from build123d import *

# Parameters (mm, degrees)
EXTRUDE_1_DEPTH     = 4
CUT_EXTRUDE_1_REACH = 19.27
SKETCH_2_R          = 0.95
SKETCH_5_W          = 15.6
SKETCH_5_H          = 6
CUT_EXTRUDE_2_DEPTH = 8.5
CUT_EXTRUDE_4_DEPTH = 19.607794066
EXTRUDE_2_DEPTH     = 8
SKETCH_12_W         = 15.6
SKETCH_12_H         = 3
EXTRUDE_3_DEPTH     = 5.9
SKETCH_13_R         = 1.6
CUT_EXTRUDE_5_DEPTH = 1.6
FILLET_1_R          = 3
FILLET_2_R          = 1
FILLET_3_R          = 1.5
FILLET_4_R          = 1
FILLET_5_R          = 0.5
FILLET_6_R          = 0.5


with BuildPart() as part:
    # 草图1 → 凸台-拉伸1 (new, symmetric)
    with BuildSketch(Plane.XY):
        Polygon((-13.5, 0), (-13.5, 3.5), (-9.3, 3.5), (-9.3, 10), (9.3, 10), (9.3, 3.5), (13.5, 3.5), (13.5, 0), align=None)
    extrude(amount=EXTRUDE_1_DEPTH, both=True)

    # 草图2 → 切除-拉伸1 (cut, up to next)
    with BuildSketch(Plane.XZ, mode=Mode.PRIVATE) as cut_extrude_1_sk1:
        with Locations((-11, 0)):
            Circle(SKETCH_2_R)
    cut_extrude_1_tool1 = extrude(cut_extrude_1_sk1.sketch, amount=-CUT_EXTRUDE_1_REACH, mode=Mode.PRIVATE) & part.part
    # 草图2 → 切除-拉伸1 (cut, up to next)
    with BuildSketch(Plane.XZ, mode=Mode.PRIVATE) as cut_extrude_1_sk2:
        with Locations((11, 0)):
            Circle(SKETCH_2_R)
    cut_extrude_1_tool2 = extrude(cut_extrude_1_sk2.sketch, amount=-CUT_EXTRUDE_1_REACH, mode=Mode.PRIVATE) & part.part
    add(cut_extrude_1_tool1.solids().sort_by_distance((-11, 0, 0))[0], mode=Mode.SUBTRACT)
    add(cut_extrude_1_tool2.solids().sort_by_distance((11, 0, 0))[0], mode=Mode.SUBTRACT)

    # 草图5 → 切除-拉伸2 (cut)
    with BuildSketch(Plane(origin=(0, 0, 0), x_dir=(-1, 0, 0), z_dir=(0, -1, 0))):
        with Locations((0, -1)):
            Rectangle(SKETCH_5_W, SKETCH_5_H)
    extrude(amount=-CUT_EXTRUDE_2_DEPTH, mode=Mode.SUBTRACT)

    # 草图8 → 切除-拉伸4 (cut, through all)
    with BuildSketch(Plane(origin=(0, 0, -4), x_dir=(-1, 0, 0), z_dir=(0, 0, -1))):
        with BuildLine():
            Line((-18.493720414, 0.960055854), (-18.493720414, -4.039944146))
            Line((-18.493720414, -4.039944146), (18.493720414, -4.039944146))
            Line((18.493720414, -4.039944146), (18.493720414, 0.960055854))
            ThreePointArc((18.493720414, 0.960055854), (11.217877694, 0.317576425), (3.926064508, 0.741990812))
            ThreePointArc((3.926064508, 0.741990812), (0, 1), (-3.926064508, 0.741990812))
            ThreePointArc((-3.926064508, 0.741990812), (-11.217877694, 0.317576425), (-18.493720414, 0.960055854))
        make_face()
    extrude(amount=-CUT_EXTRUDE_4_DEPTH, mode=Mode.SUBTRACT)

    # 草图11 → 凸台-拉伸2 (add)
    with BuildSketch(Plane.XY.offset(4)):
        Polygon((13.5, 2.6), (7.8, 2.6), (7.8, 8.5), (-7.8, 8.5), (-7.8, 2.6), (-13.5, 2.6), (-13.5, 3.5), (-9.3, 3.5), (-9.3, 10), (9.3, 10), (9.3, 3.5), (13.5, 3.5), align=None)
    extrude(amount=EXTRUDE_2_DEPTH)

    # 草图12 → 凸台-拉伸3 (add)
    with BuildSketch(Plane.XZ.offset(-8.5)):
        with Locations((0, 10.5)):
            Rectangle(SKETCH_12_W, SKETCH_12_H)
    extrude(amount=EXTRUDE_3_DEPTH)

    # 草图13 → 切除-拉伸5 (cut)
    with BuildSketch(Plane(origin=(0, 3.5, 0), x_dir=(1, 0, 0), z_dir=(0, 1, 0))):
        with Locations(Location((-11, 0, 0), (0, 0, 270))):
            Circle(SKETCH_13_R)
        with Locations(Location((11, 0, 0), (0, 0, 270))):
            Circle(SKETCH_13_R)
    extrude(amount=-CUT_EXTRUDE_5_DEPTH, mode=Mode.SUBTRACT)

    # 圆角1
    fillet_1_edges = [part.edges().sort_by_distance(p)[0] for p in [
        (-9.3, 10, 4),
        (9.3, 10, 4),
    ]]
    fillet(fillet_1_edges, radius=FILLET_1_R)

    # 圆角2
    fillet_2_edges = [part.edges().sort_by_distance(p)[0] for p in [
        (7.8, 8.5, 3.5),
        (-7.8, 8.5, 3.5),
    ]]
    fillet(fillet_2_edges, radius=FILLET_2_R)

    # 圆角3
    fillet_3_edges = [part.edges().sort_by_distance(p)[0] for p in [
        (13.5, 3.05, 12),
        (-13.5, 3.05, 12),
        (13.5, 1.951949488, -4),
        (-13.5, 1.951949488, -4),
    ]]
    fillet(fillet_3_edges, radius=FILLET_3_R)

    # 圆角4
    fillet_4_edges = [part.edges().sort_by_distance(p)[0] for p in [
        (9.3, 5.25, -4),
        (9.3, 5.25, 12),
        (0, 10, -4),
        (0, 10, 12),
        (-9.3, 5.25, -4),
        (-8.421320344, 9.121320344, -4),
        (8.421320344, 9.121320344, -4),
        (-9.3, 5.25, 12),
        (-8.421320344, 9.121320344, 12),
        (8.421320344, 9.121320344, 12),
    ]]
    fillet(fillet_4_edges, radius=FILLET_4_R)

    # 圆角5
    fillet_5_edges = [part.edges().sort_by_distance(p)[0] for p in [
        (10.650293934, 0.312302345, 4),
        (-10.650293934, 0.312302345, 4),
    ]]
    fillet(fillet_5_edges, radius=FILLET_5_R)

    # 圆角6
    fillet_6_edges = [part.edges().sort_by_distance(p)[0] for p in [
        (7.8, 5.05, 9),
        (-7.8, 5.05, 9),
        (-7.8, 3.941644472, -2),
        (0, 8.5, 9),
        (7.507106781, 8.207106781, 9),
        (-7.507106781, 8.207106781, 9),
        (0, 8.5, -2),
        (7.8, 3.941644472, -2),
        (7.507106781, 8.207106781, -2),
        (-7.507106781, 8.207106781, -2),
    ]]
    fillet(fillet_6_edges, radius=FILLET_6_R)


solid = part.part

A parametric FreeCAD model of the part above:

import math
import FreeCAD as App
import Part
import Sketcher


def edges_at(feature, points):
    """Names of the edges that pass closest to the given points."""
    edges = feature.Shape.Edges
    near = lambda p: min(range(len(edges)), key=lambda i: edges[i].distToShape(Part.Vertex(*p))[0])
    return sorted({f"Edge{near(p) + 1}" for p in points})

doc = App.newDocument("Part")
params = doc.addObject("Spreadsheet::Sheet", "Params")
for row, (alias, value) in enumerate([
    ("sketch1_width", "27 mm"),
    ("sketch1_width2", "4.2 mm"),
    ("sketch1_height", "3.5 mm"),
    ("sketch1_height2", "6.5 mm"),
    ("pad1_length", "8 mm"),
    ("sketch2_diameter", "1.9 mm"),
    ("sketch3_diameter", "1.9 mm"),
    ("sketch4_height", "6 mm"),
    ("sketch4_width", "15.6 mm"),
    ("pocket3_length", "8.5 mm"),
    ("sketch5_radius", "50 mm"),
    ("sketch5_radius2", "30 mm"),
    ("sketch5_height", "5 mm"),
    ("sketch6_width", "5.7 mm"),
    ("sketch6_width2", "4.2 mm"),
    ("sketch6_width3", "18.6 mm"),
    ("sketch6_height", "0.9 mm"),
    ("sketch6_height2", "6.5 mm"),
    ("pad2_length", "8 mm"),
    ("sketch7_height", "3 mm"),
    ("sketch7_width", "15.6 mm"),
    ("pad3_length", "5.9 mm"),
    ("sketch8_diameter", "3.2 mm"),
    ("pocket5_length", "1.6 mm"),
    ("fillet_radius", "3 mm"),
    ("fillet2_radius", "1 mm"),
    ("fillet3_radius", "1.5 mm"),
    ("fillet4_radius", "1 mm"),
    ("fillet5_radius", "0.5 mm"),
    ("fillet6_radius", "0.5 mm"),
], start=1):
    params.set(f"A{row}", alias)
    params.set(f"B{row}", "=" + value)
    params.setAlias(f"B{row}", alias)

body = doc.addObject("PartDesign::Body", "Body")

sketch1 = body.newObject("Sketcher::SketchObject", "Sketch")
sketch1.AttachmentSupport = (doc.getObject("XY_Plane"), [""])
sketch1.MapMode = "FlatFace"
sketch1.addGeometry(Part.LineSegment(App.Vector(-13.5, 3.5, 0), App.Vector(-13.5, 0, 0)), False)
sketch1.addGeometry(Part.LineSegment(App.Vector(-13.5, 0, 0), App.Vector(13.5, 0, 0)), False)
sketch1.addGeometry(Part.LineSegment(App.Vector(13.5, 0, 0), App.Vector(13.5, 3.5, 0)), False)
sketch1.addGeometry(Part.LineSegment(App.Vector(13.5, 3.5, 0), App.Vector(9.3, 3.5, 0)), False)
sketch1.addGeometry(Part.LineSegment(App.Vector(9.3, 3.5, 0), App.Vector(9.3, 10, 0)), False)
sketch1.addGeometry(Part.LineSegment(App.Vector(9.3, 10, 0), App.Vector(-9.3, 10, 0)), False)
sketch1.addGeometry(Part.LineSegment(App.Vector(-9.3, 10, 0), App.Vector(-9.3, 3.5, 0)), False)
sketch1.addGeometry(Part.LineSegment(App.Vector(-9.3, 3.5, 0), App.Vector(-13.5, 3.5, 0)), False)
sketch1.addConstraint(Sketcher.Constraint("Coincident", 0, 2, 1, 1))
sketch1.addConstraint(Sketcher.Constraint("Coincident", 1, 2, 2, 1))
sketch1.addConstraint(Sketcher.Constraint("Coincident", 2, 2, 3, 1))
sketch1.addConstraint(Sketcher.Constraint("Coincident", 3, 2, 4, 1))
sketch1.addConstraint(Sketcher.Constraint("Coincident", 4, 2, 5, 1))
sketch1.addConstraint(Sketcher.Constraint("Coincident", 5, 2, 6, 1))
sketch1.addConstraint(Sketcher.Constraint("Coincident", 6, 2, 7, 1))
sketch1.addConstraint(Sketcher.Constraint("Coincident", 7, 2, 0, 1))
sketch1.addConstraint(Sketcher.Constraint("Vertical", 0))
sketch1.addConstraint(Sketcher.Constraint("Horizontal", 1))
sketch1.addConstraint(Sketcher.Constraint("Vertical", 2))
sketch1.addConstraint(Sketcher.Constraint("Horizontal", 3))
sketch1.addConstraint(Sketcher.Constraint("Vertical", 4))
sketch1.addConstraint(Sketcher.Constraint("Horizontal", 5))
sketch1.addConstraint(Sketcher.Constraint("Vertical", 6))
sketch1.addConstraint(Sketcher.Constraint("Horizontal", 7))
sketch1.addConstraint(Sketcher.Constraint("Symmetric", 0, 2, 1, 2, -1, 1))
sketch1.addConstraint(Sketcher.Constraint("Symmetric", 3, 2, 6, 2, -2))
sketch1.addConstraint(Sketcher.Constraint("DistanceX", 1, 1, 1, 2, 27.0))
sketch1.addConstraint(Sketcher.Constraint("DistanceX", 3, 2, 3, 1, 4.2))
sketch1.addConstraint(Sketcher.Constraint("DistanceY", 0, 2, 0, 1, 3.5))
sketch1.addConstraint(Sketcher.Constraint("DistanceY", 4, 1, 4, 2, 6.5))
sketch1.setExpression("Constraints[18]", "Params.sketch1_width")
sketch1.setExpression("Constraints[19]", "Params.sketch1_width2")
sketch1.setExpression("Constraints[20]", "Params.sketch1_height")
sketch1.setExpression("Constraints[21]", "Params.sketch1_height2")
pad1 = body.newObject("PartDesign::Pad", "Pad")
pad1.Profile = sketch1
pad1.setExpression("Length", "Params.pad1_length")
pad1.Midplane = True

sketch2 = body.newObject("Sketcher::SketchObject", "Sketch001")
sketch2.AttachmentSupport = (doc.getObject("XZ_Plane"), [""])
sketch2.MapMode = "FlatFace"
sketch2.addGeometry(Part.Circle(App.Vector(-11, 0, 0), App.Vector(0, 0, 1), 0.95), False)
sketch2.addConstraint(Sketcher.Constraint("PointOnObject", 0, 3, -1))
sketch2.addConstraint(Sketcher.Constraint("Diameter", 0, 1.9))
sketch2.addConstraint(Sketcher.Constraint("DistanceX", 0, 3, -1, 1, 11.0))
sketch2.setExpression("Constraints[1]", "Params.sketch2_diameter")
pocket1 = body.newObject("PartDesign::Pocket", "Pocket")
pocket1.Profile = sketch2
pocket1.Type = "UpToFirst"

sketch3 = body.newObject("Sketcher::SketchObject", "Sketch002")
sketch3.AttachmentSupport = (doc.getObject("XZ_Plane"), [""])
sketch3.MapMode = "FlatFace"
sketch3.addGeometry(Part.Circle(App.Vector(11, 0, 0), App.Vector(0, 0, 1), 0.95), False)
sketch3.addConstraint(Sketcher.Constraint("PointOnObject", 0, 3, -1))
sketch3.addConstraint(Sketcher.Constraint("Diameter", 0, 1.9))
sketch3.addConstraint(Sketcher.Constraint("DistanceX", -1, 1, 0, 3, 11.0))
sketch3.setExpression("Constraints[1]", "Params.sketch3_diameter")
pocket2 = body.newObject("PartDesign::Pocket", "Pocket001")
pocket2.Profile = sketch3
pocket2.Type = "UpToFirst"

sketch4 = body.newObject("Sketcher::SketchObject", "Sketch003")
sketch4.AttachmentSupport = (doc.getObject("XZ_Plane"), [""])
sketch4.MapMode = "FlatFace"
sketch4.addGeometry(Part.LineSegment(App.Vector(7.8, -2, 0), App.Vector(7.8, 4, 0)), False)
sketch4.addGeometry(Part.LineSegment(App.Vector(7.8, 4, 0), App.Vector(-7.8, 4, 0)), False)
sketch4.addGeometry(Part.LineSegment(App.Vector(-7.8, 4, 0), App.Vector(-7.8, -2, 0)), False)
sketch4.addGeometry(Part.LineSegment(App.Vector(-7.8, -2, 0), App.Vector(7.8, -2, 0)), False)
sketch4.addConstraint(Sketcher.Constraint("Coincident", 0, 2, 1, 1))
sketch4.addConstraint(Sketcher.Constraint("Coincident", 1, 2, 2, 1))
sketch4.addConstraint(Sketcher.Constraint("Coincident", 2, 2, 3, 1))
sketch4.addConstraint(Sketcher.Constraint("Coincident", 3, 2, 0, 1))
sketch4.addConstraint(Sketcher.Constraint("Vertical", 0))
sketch4.addConstraint(Sketcher.Constraint("Horizontal", 1))
sketch4.addConstraint(Sketcher.Constraint("Vertical", 2))
sketch4.addConstraint(Sketcher.Constraint("Horizontal", 3))
sketch4.addConstraint(Sketcher.Constraint("DistanceY", 0, 1, 0, 2, 6.0))
sketch4.addConstraint(Sketcher.Constraint("DistanceX", 1, 2, 1, 1, 15.6))
sketch4.addConstraint(Sketcher.Constraint("DistanceY", -1, 1, 0, 2, 4.0))
sketch4.addConstraint(Sketcher.Constraint("DistanceX", -1, 1, 0, 2, 7.8))
sketch4.setExpression("Constraints[8]", "Params.sketch4_height")
sketch4.setExpression("Constraints[9]", "Params.sketch4_width")
pocket3 = body.newObject("PartDesign::Pocket", "Pocket002")
pocket3.Profile = sketch4
pocket3.setExpression("Length", "Params.pocket3_length")

sketch5 = body.newObject("Sketcher::SketchObject", "Sketch004")
sketch5.AttachmentSupport = (doc.getObject("XY_Plane"), [""])
sketch5.MapMode = "FlatFace"
sketch5.AttachmentOffset = App.Placement(App.Vector(0, 0, -4), App.Rotation())
sketch5.addGeometry(Part.LineSegment(App.Vector(18.49372, 0.960056, 0), App.Vector(18.49372, -4.039944, 0)), False)
sketch5.addGeometry(Part.LineSegment(App.Vector(18.49372, -4.039944, 0), App.Vector(-18.49372, -4.039944, 0)), False)
sketch5.addGeometry(Part.LineSegment(App.Vector(-18.49372, -4.039944, 0), App.Vector(-18.49372, 0.960056, 0)), False)
sketch5.addGeometry(Part.ArcOfCircle(Part.Circle(App.Vector(-10.469505, 50.311976, 0), App.Vector(0, 0, 1), 50), math.radians(-99.235008), math.radians(-82.480199)), False)
sketch5.addGeometry(Part.ArcOfCircle(Part.Circle(App.Vector(0, -29, 0), App.Vector(0, 0, 1), 30), math.radians(82.480199), math.radians(97.519801)), False)
sketch5.addGeometry(Part.ArcOfCircle(Part.Circle(App.Vector(10.469505, 50.311976, 0), App.Vector(0, 0, 1), 50), math.radians(-97.519801), math.radians(-80.764992)), False)
sketch5.addConstraint(Sketcher.Constraint("Coincident", 0, 2, 1, 1))
sketch5.addConstraint(Sketcher.Constraint("Coincident", 1, 2, 2, 1))
sketch5.addConstraint(Sketcher.Constraint("Coincident", 2, 2, 3, 1))
sketch5.addConstraint(Sketcher.Constraint("Tangent", 3, 2, 4, 2))
sketch5.addConstraint(Sketcher.Constraint("Tangent", 4, 1, 5, 1))
sketch5.addConstraint(Sketcher.Constraint("Coincident", 5, 2, 0, 1))
sketch5.addConstraint(Sketcher.Constraint("Vertical", 0))
sketch5.addConstraint(Sketcher.Constraint("Horizontal", 1))
sketch5.addConstraint(Sketcher.Constraint("Vertical", 2))
sketch5.addConstraint(Sketcher.Constraint("Equal", 3, 5))
sketch5.addConstraint(Sketcher.Constraint("Symmetric", 3, 3, 5, 3, -2))
sketch5.addConstraint(Sketcher.Constraint("Horizontal", 2, 2, 5, 2))
sketch5.addConstraint(Sketcher.Constraint("Radius", 3, 50.0))
sketch5.addConstraint(Sketcher.Constraint("Radius", 4, 30.0))
sketch5.addConstraint(Sketcher.Constraint("DistanceY", 0, 2, 0, 1, 5.0))
sketch5.addConstraint(Sketcher.Constraint("DistanceY", 4, 3, -1, 1, 29.0))
sketch5.addConstraint(Sketcher.Constraint("DistanceX", 1, 2, 1, 1, 36.987441))
sketch5.addConstraint(Sketcher.Constraint("DistanceY", -1, 1, 3, 2, 0.741991))
sketch5.setExpression("Constraints[12]", "Params.sketch5_radius")
sketch5.setExpression("Constraints[13]", "Params.sketch5_radius2")
sketch5.setExpression("Constraints[14]", "Params.sketch5_height")
pocket4 = body.newObject("PartDesign::Pocket", "Pocket003")
pocket4.Profile = sketch5
pocket4.Type = "ThroughAll"
pocket4.Reversed = True

sketch6 = body.newObject("Sketcher::SketchObject", "Sketch005")
sketch6.AttachmentSupport = (doc.getObject("XY_Plane"), [""])
sketch6.MapMode = "FlatFace"
sketch6.AttachmentOffset = App.Placement(App.Vector(0, 0, 4), App.Rotation())
sketch6.addGeometry(Part.LineSegment(App.Vector(7.8, 2.6, 0), App.Vector(13.5, 2.6, 0)), False)
sketch6.addGeometry(Part.LineSegment(App.Vector(13.5, 2.6, 0), App.Vector(13.5, 3.5, 0)), False)
sketch6.addGeometry(Part.LineSegment(App.Vector(13.5, 3.5, 0), App.Vector(9.3, 3.5, 0)), False)
sketch6.addGeometry(Part.LineSegment(App.Vector(9.3, 3.5, 0), App.Vector(9.3, 10, 0)), False)
sketch6.addGeometry(Part.LineSegment(App.Vector(9.3, 10, 0), App.Vector(-9.3, 10, 0)), False)
sketch6.addGeometry(Part.LineSegment(App.Vector(-9.3, 10, 0), App.Vector(-9.3, 3.5, 0)), False)
sketch6.addGeometry(Part.LineSegment(App.Vector(-9.3, 3.5, 0), App.Vector(-13.5, 3.5, 0)), False)
sketch6.addGeometry(Part.LineSegment(App.Vector(-13.5, 3.5, 0), App.Vector(-13.5, 2.6, 0)), False)
sketch6.addGeometry(Part.LineSegment(App.Vector(-13.5, 2.6, 0), App.Vector(-7.8, 2.6, 0)), False)
sketch6.addGeometry(Part.LineSegment(App.Vector(-7.8, 2.6, 0), App.Vector(-7.8, 8.5, 0)), False)
sketch6.addGeometry(Part.LineSegment(App.Vector(-7.8, 8.5, 0), App.Vector(7.8, 8.5, 0)), False)
sketch6.addGeometry(Part.LineSegment(App.Vector(7.8, 8.5, 0), App.Vector(7.8, 2.6, 0)), False)
sketch6.addConstraint(Sketcher.Constraint("Coincident", 0, 2, 1, 1))
sketch6.addConstraint(Sketcher.Constraint("Coincident", 1, 2, 2, 1))
sketch6.addConstraint(Sketcher.Constraint("Coincident", 2, 2, 3, 1))
sketch6.addConstraint(Sketcher.Constraint("Coincident", 3, 2, 4, 1))
sketch6.addConstraint(Sketcher.Constraint("Coincident", 4, 2, 5, 1))
sketch6.addConstraint(Sketcher.Constraint("Coincident", 5, 2, 6, 1))
sketch6.addConstraint(Sketcher.Constraint("Coincident", 6, 2, 7, 1))
sketch6.addConstraint(Sketcher.Constraint("Coincident", 7, 2, 8, 1))
sketch6.addConstraint(Sketcher.Constraint("Coincident", 8, 2, 9, 1))
sketch6.addConstraint(Sketcher.Constraint("Coincident", 9, 2, 10, 1))
sketch6.addConstraint(Sketcher.Constraint("Coincident", 10, 2, 11, 1))
sketch6.addConstraint(Sketcher.Constraint("Coincident", 11, 2, 0, 1))
sketch6.addConstraint(Sketcher.Constraint("Horizontal", 0))
sketch6.addConstraint(Sketcher.Constraint("Vertical", 1))
sketch6.addConstraint(Sketcher.Constraint("Horizontal", 2))
sketch6.addConstraint(Sketcher.Constraint("Vertical", 3))
sketch6.addConstraint(Sketcher.Constraint("Horizontal", 4))
sketch6.addConstraint(Sketcher.Constraint("Vertical", 5))
sketch6.addConstraint(Sketcher.Constraint("Horizontal", 6))
sketch6.addConstraint(Sketcher.Constraint("Vertical", 7))
sketch6.addConstraint(Sketcher.Constraint("Horizontal", 8))
sketch6.addConstraint(Sketcher.Constraint("Vertical", 9))
sketch6.addConstraint(Sketcher.Constraint("Horizontal", 10))
sketch6.addConstraint(Sketcher.Constraint("Vertical", 11))
sketch6.addConstraint(Sketcher.Constraint("Symmetric", 2, 2, 5, 2, -2))
sketch6.addConstraint(Sketcher.Constraint("Symmetric", 0, 2, 7, 2, -2))
sketch6.addConstraint(Sketcher.Constraint("Equal", 0, 8))
sketch6.addConstraint(Sketcher.Constraint("DistanceX", 0, 1, 0, 2, 5.7))
sketch6.addConstraint(Sketcher.Constraint("DistanceX", 2, 2, 2, 1, 4.2))
sketch6.addConstraint(Sketcher.Constraint("DistanceX", 4, 2, 4, 1, 18.6))
sketch6.addConstraint(Sketcher.Constraint("DistanceY", 1, 1, 1, 2, 0.9))
sketch6.addConstraint(Sketcher.Constraint("DistanceY", 3, 1, 3, 2, 6.5))
sketch6.addConstraint(Sketcher.Constraint("DistanceY", 9, 1, 9, 2, 5.9))
sketch6.addConstraint(Sketcher.Constraint("DistanceY", -1, 1, 3, 2, 10.0))
sketch6.setExpression("Constraints[27]", "Params.sketch6_width")
sketch6.setExpression("Constraints[28]", "Params.sketch6_width2")
sketch6.setExpression("Constraints[29]", "Params.sketch6_width3")
sketch6.setExpression("Constraints[30]", "Params.sketch6_height")
sketch6.setExpression("Constraints[31]", "Params.sketch6_height2")
pad2 = body.newObject("PartDesign::Pad", "Pad001")
pad2.Profile = sketch6
pad2.setExpression("Length", "Params.pad2_length")

sketch7 = body.newObject("Sketcher::SketchObject", "Sketch006")
sketch7.AttachmentSupport = (doc.getObject("XZ_Plane"), [""])
sketch7.MapMode = "FlatFace"
sketch7.AttachmentOffset = App.Placement(App.Vector(0, 0, -8.5), App.Rotation())
sketch7.addGeometry(Part.LineSegment(App.Vector(-7.8, 12, 0), App.Vector(-7.8, 9, 0)), False)
sketch7.addGeometry(Part.LineSegment(App.Vector(-7.8, 9, 0), App.Vector(7.8, 9, 0)), False)
sketch7.addGeometry(Part.LineSegment(App.Vector(7.8, 9, 0), App.Vector(7.8, 12, 0)), False)
sketch7.addGeometry(Part.LineSegment(App.Vector(7.8, 12, 0), App.Vector(-7.8, 12, 0)), False)
sketch7.addConstraint(Sketcher.Constraint("Coincident", 0, 2, 1, 1))
sketch7.addConstraint(Sketcher.Constraint("Coincident", 1, 2, 2, 1))
sketch7.addConstraint(Sketcher.Constraint("Coincident", 2, 2, 3, 1))
sketch7.addConstraint(Sketcher.Constraint("Coincident", 3, 2, 0, 1))
sketch7.addConstraint(Sketcher.Constraint("Vertical", 0))
sketch7.addConstraint(Sketcher.Constraint("Horizontal", 1))
sketch7.addConstraint(Sketcher.Constraint("Vertical", 2))
sketch7.addConstraint(Sketcher.Constraint("Horizontal", 3))
sketch7.addConstraint(Sketcher.Constraint("DistanceY", 0, 2, 0, 1, 3.0))
sketch7.addConstraint(Sketcher.Constraint("DistanceX", 1, 1, 1, 2, 15.6))
sketch7.addConstraint(Sketcher.Constraint("DistanceY", -1, 1, 0, 2, 9.0))
sketch7.addConstraint(Sketcher.Constraint("DistanceX", 0, 2, -1, 1, 7.8))
sketch7.setExpression("Constraints[8]", "Params.sketch7_height")
sketch7.setExpression("Constraints[9]", "Params.sketch7_width")
pad3 = body.newObject("PartDesign::Pad", "Pad002")
pad3.Profile = sketch7
pad3.setExpression("Length", "Params.pad3_length")

sketch8 = body.newObject("Sketcher::SketchObject", "Sketch007")
sketch8.AttachmentSupport = (doc.getObject("XZ_Plane"), [""])
sketch8.MapMode = "FlatFace"
sketch8.AttachmentOffset = App.Placement(App.Vector(0, 0, -3.5), App.Rotation())
sketch8.addGeometry(Part.Circle(App.Vector(-11, 0, 0), App.Vector(0, 0, 1), 1.6), False)
sketch8.addGeometry(Part.Circle(App.Vector(11, 0, 0), App.Vector(0, 0, 1), 1.6), False)
sketch8.addConstraint(Sketcher.Constraint("Equal", 0, 1))
sketch8.addConstraint(Sketcher.Constraint("Symmetric", 0, 3, 1, 3, -1, 1))
sketch8.addConstraint(Sketcher.Constraint("PointOnObject", 0, 3, -1))
sketch8.addConstraint(Sketcher.Constraint("Diameter", 0, 3.2))
sketch8.addConstraint(Sketcher.Constraint("DistanceX", 0, 3, -1, 1, 11.0))
sketch8.setExpression("Constraints[3]", "Params.sketch8_diameter")
pocket5 = body.newObject("PartDesign::Pocket", "Pocket004")
pocket5.Profile = sketch8
pocket5.setExpression("Length", "Params.pocket5_length")
pocket5.Reversed = True
doc.recompute()

fillet = body.newObject("PartDesign::Fillet", "Fillet")
fillet.Base = (pocket5, edges_at(pocket5, [(-9.3, 10, 4), (9.3, 10, 4)]))
fillet.setExpression("Radius", "Params.fillet_radius")
doc.recompute()

fillet2 = body.newObject("PartDesign::Fillet", "Fillet001")
fillet2.Base = (fillet, edges_at(fillet, [(7.8, 8.5, 3.5), (-7.8, 8.5, 3.5)]))
fillet2.setExpression("Radius", "Params.fillet2_radius")
doc.recompute()

fillet3 = body.newObject("PartDesign::Fillet", "Fillet002")
fillet3.Base = (fillet2, edges_at(fillet2, [
    (13.5, 3.05, 12),
    (-13.5, 3.05, 12),
    (13.5, 1.952, -4),
    (-13.5, 1.952, -4),
]))
fillet3.setExpression("Radius", "Params.fillet3_radius")
doc.recompute()

fillet4 = body.newObject("PartDesign::Fillet", "Fillet003")
fillet4.Base = (fillet3, edges_at(fillet3, [
    (9.3, 5.25, -4),
    (9.3, 5.25, 12),
    (0, 10, -4),
    (0, 10, 12),
    (-9.3, 5.25, -4),
    (-8.421, 9.121, -4),
    (8.421, 9.121, -4),
    (-9.3, 5.25, 12),
    (-8.421, 9.121, 12),
    (8.421, 9.121, 12),
]))
fillet4.setExpression("Radius", "Params.fillet4_radius")
doc.recompute()

fillet5 = body.newObject("PartDesign::Fillet", "Fillet004")
fillet5.Base = (fillet4, edges_at(fillet4, [(10.65, 0.312, 4), (-10.65, 0.312, 4)]))
fillet5.setExpression("Radius", "Params.fillet5_radius")
doc.recompute()

fillet6 = body.newObject("PartDesign::Fillet", "Fillet005")
fillet6.Base = (fillet5, edges_at(fillet5, [
    (7.8, 5.05, 9),
    (-7.8, 5.05, 9),
    (-7.8, 3.942, -2),
    (0, 8.5, 9),
    (7.507, 8.207, 9),
    (-7.507, 8.207, 9),
    (0, 8.5, -2),
    (7.8, 3.942, -2),
    (7.507, 8.207, -2),
    (-7.507, 8.207, -2),
]))
fillet6.setExpression("Radius", "Params.fillet6_radius")

doc.recompute()
